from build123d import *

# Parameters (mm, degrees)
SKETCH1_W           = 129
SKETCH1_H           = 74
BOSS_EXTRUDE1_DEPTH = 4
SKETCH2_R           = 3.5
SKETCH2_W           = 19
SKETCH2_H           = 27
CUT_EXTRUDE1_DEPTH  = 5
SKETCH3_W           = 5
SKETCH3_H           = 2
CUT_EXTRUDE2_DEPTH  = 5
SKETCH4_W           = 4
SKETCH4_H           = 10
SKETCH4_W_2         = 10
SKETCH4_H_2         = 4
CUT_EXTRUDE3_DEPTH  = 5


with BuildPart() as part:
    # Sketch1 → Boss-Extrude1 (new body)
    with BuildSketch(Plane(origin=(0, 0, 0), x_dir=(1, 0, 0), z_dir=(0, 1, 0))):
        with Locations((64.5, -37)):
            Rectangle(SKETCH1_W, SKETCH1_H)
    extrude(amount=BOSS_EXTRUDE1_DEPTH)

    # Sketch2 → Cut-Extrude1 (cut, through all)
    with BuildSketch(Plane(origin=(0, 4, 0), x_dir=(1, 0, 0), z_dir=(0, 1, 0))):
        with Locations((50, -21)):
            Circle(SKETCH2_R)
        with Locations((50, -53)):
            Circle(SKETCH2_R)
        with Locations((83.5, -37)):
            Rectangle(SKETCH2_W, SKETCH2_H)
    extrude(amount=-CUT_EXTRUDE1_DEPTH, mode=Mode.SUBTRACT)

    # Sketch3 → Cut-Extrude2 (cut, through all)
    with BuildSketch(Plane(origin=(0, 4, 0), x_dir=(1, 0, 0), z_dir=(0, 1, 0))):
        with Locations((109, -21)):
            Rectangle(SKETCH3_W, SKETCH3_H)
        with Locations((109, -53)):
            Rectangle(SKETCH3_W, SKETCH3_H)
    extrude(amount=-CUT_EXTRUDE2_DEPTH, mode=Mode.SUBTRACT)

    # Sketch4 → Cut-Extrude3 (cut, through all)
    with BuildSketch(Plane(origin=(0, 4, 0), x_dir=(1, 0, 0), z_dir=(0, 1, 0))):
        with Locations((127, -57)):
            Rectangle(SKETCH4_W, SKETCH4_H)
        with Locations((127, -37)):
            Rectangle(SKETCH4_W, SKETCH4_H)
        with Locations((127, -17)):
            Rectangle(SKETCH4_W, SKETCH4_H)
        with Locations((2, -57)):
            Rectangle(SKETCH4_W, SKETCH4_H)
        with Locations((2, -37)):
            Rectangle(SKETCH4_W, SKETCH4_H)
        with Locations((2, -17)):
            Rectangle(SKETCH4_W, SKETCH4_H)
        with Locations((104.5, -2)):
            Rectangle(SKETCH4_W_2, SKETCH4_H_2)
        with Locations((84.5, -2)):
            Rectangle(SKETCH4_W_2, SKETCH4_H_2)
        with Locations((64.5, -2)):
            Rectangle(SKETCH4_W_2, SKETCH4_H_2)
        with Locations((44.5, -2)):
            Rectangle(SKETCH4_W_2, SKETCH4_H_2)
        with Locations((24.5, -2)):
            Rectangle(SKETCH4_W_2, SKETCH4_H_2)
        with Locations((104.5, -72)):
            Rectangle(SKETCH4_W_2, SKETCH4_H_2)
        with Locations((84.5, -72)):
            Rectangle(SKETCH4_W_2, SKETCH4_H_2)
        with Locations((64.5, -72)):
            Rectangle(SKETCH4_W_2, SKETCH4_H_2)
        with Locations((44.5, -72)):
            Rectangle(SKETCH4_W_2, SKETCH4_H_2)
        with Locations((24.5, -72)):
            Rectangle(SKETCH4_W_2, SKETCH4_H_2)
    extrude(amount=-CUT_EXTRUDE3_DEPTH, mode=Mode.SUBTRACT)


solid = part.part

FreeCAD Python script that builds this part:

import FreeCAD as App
import Part
import Sketcher


def add_polygon(sketch, points):
    """Adds a closed chain of lines whose ends are joined by coincident constraints."""
    first, n = sketch.GeometryCount, len(points)
    for a, b in zip(points, points[1:] + points[:1]):
        sketch.addGeometry(Part.LineSegment(App.Vector(*a, 0), App.Vector(*b, 0)), False)
    for i in range(n):
        sketch.addConstraint(Sketcher.Constraint("Coincident", first + i, 2, first + (i + 1) % n, 1))

doc = App.newDocument("Part")
body = doc.addObject("PartDesign::Body", "Body")

sketch1 = doc.addObject("Sketcher::SketchObject", "Sketch")
body.addObject(sketch1)
sketch1.AttachmentSupport = (doc.XZ_Plane, [""])
sketch1.MapMode = "FlatFace"
add_polygon(sketch1, [(0, 0), (0, 74), (129, 74), (129, 0)])
sketch1.addConstraint([
    Sketcher.Constraint("Vertical", 0),
    Sketcher.Constraint("Horizontal", 1),
    Sketcher.Constraint("Vertical", 2),
    Sketcher.Constraint("Horizontal", 3),
    Sketcher.Constraint("Coincident", 3, 2, -1, 1),
    Sketcher.Constraint("DistanceX", 1, 1, 1, 2, 129.0),
    Sketcher.Constraint("DistanceY", 0, 1, 0, 2, 74.0),
])
pad1 = doc.addObject("PartDesign::Pad", "Pad")
body.addObject(pad1)
pad1.Profile = sketch1
pad1.Length = 4
pad1.Reversed = True

sketch2 = doc.addObject("Sketcher::SketchObject", "Sketch001")
body.addObject(sketch2)
sketch2.AttachmentSupport = (doc.XZ_Plane, [""])
sketch2.MapMode = "FlatFace"
sketch2.AttachmentOffset = App.Placement(App.Vector(0, 0, -4), App.Rotation())
sketch2.addGeometry(Part.Circle(App.Vector(50, 21, 0), App.Vector(0, 0, 1), 3.5), False)
sketch2.addGeometry(Part.Circle(App.Vector(50, 53, 0), App.Vector(0, 0, 1), 3.5), False)
add_polygon(sketch2, [(74, 23.5), (74, 50.5), (93, 50.5), (93, 23.5)])
sketch2.addConstraint([
    Sketcher.Constraint("Vertical", 2),
    Sketcher.Constraint("Horizontal", 3),
    Sketcher.Constraint("Vertical", 4),
    Sketcher.Constraint("Horizontal", 5),
    Sketcher.Constraint("Equal", 0, 1),
    Sketcher.Constraint("Vertical", 0, 3, 1, 3),
    Sketcher.Constraint("Diameter", 0, 7.0),
    Sketcher.Constraint("DistanceX", 3, 1, 3, 2, 19.0),
    Sketcher.Constraint("DistanceY", 2, 1, 2, 2, 27.0),
    Sketcher.Constraint("DistanceX", -1, 1, 0, 3, 50.0),
    Sketcher.Constraint("DistanceY", -1, 1, 0, 3, 21.0),
    Sketcher.Constraint("DistanceY", -1, 1, 1, 3, 53.0),
    Sketcher.Constraint("DistanceX", -1, 1, 2, 2, 74.0),
    Sketcher.Constraint("DistanceY", -1, 1, 2, 2, 50.5),
])
pocket1 = doc.addObject("PartDesign::Pocket", "Pocket")
body.addObject(pocket1)
pocket1.Profile = sketch2
pocket1.Type = "ThroughAll"
pocket1.Reversed = True

sketch3 = doc.addObject("Sketcher::SketchObject", "Sketch002")
body.addObject(sketch3)
sketch3.AttachmentSupport = (doc.XZ_Plane, [""])
sketch3.MapMode = "FlatFace"
sketch3.AttachmentOffset = App.Placement(App.Vector(0, 0, -4), App.Rotation())
add_polygon(sketch3, [(106.5, 20), (106.5, 22), (111.5, 22), (111.5, 20)])
add_polygon(sketch3, [(106.5, 52), (106.5, 54), (111.5, 54), (111.5, 52)])
sketch3.addConstraint([
    Sketcher.Constraint("Vertical", 0),
    Sketcher.Constraint("Horizontal", 1),
    Sketcher.Constraint("Vertical", 2),
    Sketcher.Constraint("Horizontal", 3),
    Sketcher.Constraint("Vertical", 4),
    Sketcher.Constraint("Horizontal", 5),
    Sketcher.Constraint("Vertical", 6),
    Sketcher.Constraint("Horizontal", 7),
    Sketcher.Constraint("Vertical", 3, 2, 4, 2),
    Sketcher.Constraint("Vertical", 2, 2, 5, 2),
    Sketcher.Constraint("Equal", 2, 4),
    Sketcher.Constraint("DistanceX", 1, 1, 1, 2, 5.0),
    Sketcher.Constraint("DistanceY", 0, 1, 0, 2, 2.0),
    Sketcher.Constraint("DistanceY", -1, 1, 0, 2, 22.0),
    Sketcher.Constraint("DistanceY", -1, 1, 4, 2, 54.0),
    Sketcher.Constraint("DistanceX", -1, 1, 0, 2, 106.5),
])
pocket2 = doc.addObject("PartDesign::Pocket", "Pocket001")
body.addObject(pocket2)
pocket2.Profile = sketch3
pocket2.Type = "ThroughAll"
pocket2.Reversed = True

sketch4 = doc.addObject("Sketcher::SketchObject", "Sketch003")
body.addObject(sketch4)
sketch4.AttachmentSupport = (doc.XZ_Plane, [""])
sketch4.MapMode = "FlatFace"
sketch4.AttachmentOffset = App.Placement(App.Vector(0, 0, -4), App.Rotation())
add_polygon(sketch4, [(125, 52), (125, 62), (129, 62), (129, 52)])
add_polygon(sketch4, [(125, 32), (125, 42), (129, 42), (129, 32)])
add_polygon(sketch4, [(125, 12), (125, 22), (129, 22), (129, 12)])
add_polygon(sketch4, [(0, 52), (0, 62), (4, 62), (4, 52)])
add_polygon(sketch4, [(0, 32), (0, 42), (4, 42), (4, 32)])
add_polygon(sketch4, [(0, 12), (0, 22), (4, 22), (4, 12)])
add_polygon(sketch4, [(99.5, 0), (99.5, 4), (109.5, 4), (109.5, 0)])
add_polygon(sketch4, [(79.5, 0), (79.5, 4), (89.5, 4), (89.5, 0)])
add_polygon(sketch4, [(59.5, 0), (59.5, 4), (69.5, 4), (69.5, 0)])
add_polygon(sketch4, [(39.5, 0), (39.5, 4), (49.5, 4), (49.5, 0)])
add_polygon(sketch4, [(19.5, 0), (19.5, 4), (29.5, 4), (29.5, 0)])
add_polygon(sketch4, [(99.5, 70), (99.5, 74), (109.5, 74), (109.5, 70)])
add_polygon(sketch4, [(79.5, 70), (79.5, 74), (89.5, 74), (89.5, 70)])
add_polygon(sketch4, [(59.5, 70), (59.5, 74), (69.5, 74), (69.5, 70)])
add_polygon(sketch4, [(39.5, 70), (39.5, 74), (49.5, 74), (49.5, 70)])
add_polygon(sketch4, [(19.5, 70), (19.5, 74), (29.5, 74), (29.5, 70)])
sketch4.addConstraint([
    Sketcher.Constraint("Vertical", 0),
    Sketcher.Constraint("Horizontal", 1),
    Sketcher.Constraint("Vertical", 2),
    Sketcher.Constraint("Horizontal", 3),
    Sketcher.Constraint("Vertical", 4),
    Sketcher.Constraint("Horizontal", 5),
    Sketcher.Constraint("Vertical", 6),
    Sketcher.Constraint("Horizontal", 7),
    Sketcher.Constraint("Vertical", 8),
    Sketcher.Constraint("Horizontal", 9),
    Sketcher.Constraint("Vertical", 10),
    Sketcher.Constraint("Horizontal", 11),
    Sketcher.Constraint("Vertical", 12),
    Sketcher.Constraint("Horizontal", 13),
    Sketcher.Constraint("Vertical", 14),
    Sketcher.Constraint("Horizontal", 15),
    Sketcher.Constraint("Vertical", 16),
    Sketcher.Constraint("Horizontal", 17),
    Sketcher.Constraint("Vertical", 18),
    Sketcher.Constraint("Horizontal", 19),
    Sketcher.Constraint("Vertical", 20),
    Sketcher.Constraint("Horizontal", 21),
    Sketcher.Constraint("Vertical", 22),
    Sketcher.Constraint("Horizontal", 23),
    Sketcher.Constraint("Vertical", 24),
    Sketcher.Constraint("Horizontal", 25),
    Sketcher.Constraint("Vertical", 26),
    Sketcher.Constraint("Horizontal", 27),
    Sketcher.Constraint("Vertical", 28),
    Sketcher.Constraint("Horizontal", 29),
    Sketcher.Constraint("Vertical", 30),
    Sketcher.Constraint("Horizontal", 31),
    Sketcher.Constraint("Vertical", 32),
    Sketcher.Constraint("Horizontal", 33),
    Sketcher.Constraint("Vertical", 34),
    Sketcher.Constraint("Horizontal", 35),
    Sketcher.Constraint("Vertical", 36),
    Sketcher.Constraint("Horizontal", 37),
    Sketcher.Constraint("Vertical", 38),
    Sketcher.Constraint("Horizontal", 39),
    Sketcher.Constraint("Vertical", 40),
    Sketcher.Constraint("Horizontal", 41),
    Sketcher.Constraint("Vertical", 42),
    Sketcher.Constraint("Horizontal", 43),
    Sketcher.Constraint("Vertical", 44),
    Sketcher.Constraint("Horizontal", 45),
    Sketcher.Constraint("Vertical", 46),
    Sketcher.Constraint("Horizontal", 47),
    Sketcher.Constraint("Vertical", 48),
    Sketcher.Constraint("Horizontal", 49),
    Sketcher.Constraint("Vertical", 50),
    Sketcher.Constraint("Horizontal", 51),
    Sketcher.Constraint("Vertical", 52),
    Sketcher.Constraint("Horizontal", 53),
    Sketcher.Constraint("Vertical", 54),
    Sketcher.Constraint("Horizontal", 55),
    Sketcher.Constraint("Vertical", 56),
    Sketcher.Constraint("Horizontal", 57),
    Sketcher.Constraint("Vertical", 58),
    Sketcher.Constraint("Horizontal", 59),
    Sketcher.Constraint("Vertical", 60),
    Sketcher.Constraint("Horizontal", 61),
    Sketcher.Constraint("Vertical", 62),
    Sketcher.Constraint("Horizontal", 63),
    Sketcher.Constraint("PointOnObject", 12, 2, -2),
    Sketcher.Constraint("PointOnObject", 16, 2, -2),
    Sketcher.Constraint("PointOnObject", 20, 2, -2),
    Sketcher.Constraint("PointOnObject", 26, 2, -1),
    Sketcher.Constraint("PointOnObject", 30, 2, -1),
    Sketcher.Constraint("PointOnObject", 34, 2, -1),
    Sketcher.Constraint("PointOnObject", 38, 2, -1),
    Sketcher.Constraint("PointOnObject", 42, 2, -1),
    Sketcher.Constraint("Horizontal", 1, 2, 12, 2),
    Sketcher.Constraint("Horizontal", 3, 2, 14, 2),
    Sketcher.Constraint("Horizontal", 5, 2, 16, 2),
    Sketcher.Constraint("Horizontal", 7, 2, 18, 2),
    Sketcher.Constraint("Horizontal", 9, 2, 20, 2),
    Sketcher.Constraint("Horizontal", 11, 2, 22, 2),
    Sketcher.Constraint("Horizontal", 25, 2, 28, 2),
    Sketcher.Constraint("Horizontal", 29, 2, 32, 2),
    Sketcher.Constraint("Horizontal", 33, 2, 36, 2),
    Sketcher.Constraint("Horizontal", 37, 2, 40, 2),
    Sketcher.Constraint("Horizontal", 45, 2, 48, 2),
    Sketcher.Constraint("Horizontal", 47, 2, 50, 2),
    Sketcher.Constraint("Horizontal", 49, 2, 52, 2),
    Sketcher.Constraint("Horizontal", 51, 2, 54, 2),
    Sketcher.Constraint("Horizontal", 53, 2, 56, 2),
    Sketcher.Constraint("Horizontal", 55, 2, 58, 2),
    Sketcher.Constraint("Horizontal", 57, 2, 60, 2),
    Sketcher.Constraint("Horizontal", 59, 2, 62, 2),
    Sketcher.Constraint("Vertical", 3, 2, 4, 2),
    Sketcher.Constraint("Vertical", 2, 2, 5, 2),
    Sketcher.Constraint("Vertical", 7, 2, 8, 2),
    Sketcher.Constraint("Vertical", 6, 2, 9, 2),
    Sketcher.Constraint("Vertical", 14, 2, 17, 2),
    Sketcher.Constraint("Vertical", 18, 2, 21, 2),
    Sketcher.Constraint("Vertical", 27, 2, 44, 2),
    Sketcher.Constraint("Vertical", 26, 2, 45, 2),
    Sketcher.Constraint("Vertical", 31, 2, 48, 2),
    Sketcher.Constraint("Vertical", 30, 2, 49, 2),
    Sketcher.Constraint("Vertical", 35, 2, 52, 2),
    Sketcher.Constraint("Vertical", 34, 2, 53, 2),
    Sketcher.Constraint("Vertical", 39, 2, 56, 2),
    Sketcher.Constraint("Vertical", 38, 2, 57, 2),
    Sketcher.Constraint("Vertical", 43, 2, 60, 2),
    Sketcher.Constraint("Vertical", 42, 2, 61, 2),
    Sketcher.Constraint("Equal", 11, 13),
    Sketcher.Constraint("Equal", 27, 29),
    Sketcher.Constraint("Equal", 31, 33),
    Sketcher.Constraint("Equal", 35, 37),
    Sketcher.Constraint("Equal", 39, 41),
    Sketcher.Constraint("Equal", 63, 0),
    Sketcher.Constraint("Equal", 2, 4),
    Sketcher.Constraint("Equal", 6, 8),
    Sketcher.Constraint("Equal", 23, 24),
    Sketcher.Constraint("Equal", 42, 44),
    Sketcher.Constraint("DistanceX", 1, 1, 1, 2, 4.0),
    Sketcher.Constraint("DistanceX", 25, 1, 25, 2, 10.0),
    Sketcher.Constraint("DistanceX", -1, 1, 0, 2, 125.0),
    Sketcher.Constraint("DistanceY", -1, 1, 0, 2, 62.0),
    Sketcher.Constraint("DistanceY", -1, 1, 4, 2, 42.0),
    Sketcher.Constraint("DistanceY", -1, 1, 8, 2, 22.0),
    Sketcher.Constraint("DistanceY", -1, 1, 44, 2, 74.0),
    Sketcher.Constraint("DistanceX", -1, 1, 24, 2, 99.5),
    Sketcher.Constraint("DistanceX", -1, 1, 28, 2, 79.5),
    Sketcher.Constraint("DistanceX", -1, 1, 32, 2, 59.5),
    Sketcher.Constraint("DistanceX", -1, 1, 36, 2, 39.5),
    Sketcher.Constraint("DistanceX", -1, 1, 40, 2, 19.5),
])
pocket3 = doc.addObject("PartDesign::Pocket", "Pocket002")
body.addObject(pocket3)
pocket3.Profile = sketch4
pocket3.Type = "ThroughAll"
pocket3.Reversed = True

doc.recompute()
